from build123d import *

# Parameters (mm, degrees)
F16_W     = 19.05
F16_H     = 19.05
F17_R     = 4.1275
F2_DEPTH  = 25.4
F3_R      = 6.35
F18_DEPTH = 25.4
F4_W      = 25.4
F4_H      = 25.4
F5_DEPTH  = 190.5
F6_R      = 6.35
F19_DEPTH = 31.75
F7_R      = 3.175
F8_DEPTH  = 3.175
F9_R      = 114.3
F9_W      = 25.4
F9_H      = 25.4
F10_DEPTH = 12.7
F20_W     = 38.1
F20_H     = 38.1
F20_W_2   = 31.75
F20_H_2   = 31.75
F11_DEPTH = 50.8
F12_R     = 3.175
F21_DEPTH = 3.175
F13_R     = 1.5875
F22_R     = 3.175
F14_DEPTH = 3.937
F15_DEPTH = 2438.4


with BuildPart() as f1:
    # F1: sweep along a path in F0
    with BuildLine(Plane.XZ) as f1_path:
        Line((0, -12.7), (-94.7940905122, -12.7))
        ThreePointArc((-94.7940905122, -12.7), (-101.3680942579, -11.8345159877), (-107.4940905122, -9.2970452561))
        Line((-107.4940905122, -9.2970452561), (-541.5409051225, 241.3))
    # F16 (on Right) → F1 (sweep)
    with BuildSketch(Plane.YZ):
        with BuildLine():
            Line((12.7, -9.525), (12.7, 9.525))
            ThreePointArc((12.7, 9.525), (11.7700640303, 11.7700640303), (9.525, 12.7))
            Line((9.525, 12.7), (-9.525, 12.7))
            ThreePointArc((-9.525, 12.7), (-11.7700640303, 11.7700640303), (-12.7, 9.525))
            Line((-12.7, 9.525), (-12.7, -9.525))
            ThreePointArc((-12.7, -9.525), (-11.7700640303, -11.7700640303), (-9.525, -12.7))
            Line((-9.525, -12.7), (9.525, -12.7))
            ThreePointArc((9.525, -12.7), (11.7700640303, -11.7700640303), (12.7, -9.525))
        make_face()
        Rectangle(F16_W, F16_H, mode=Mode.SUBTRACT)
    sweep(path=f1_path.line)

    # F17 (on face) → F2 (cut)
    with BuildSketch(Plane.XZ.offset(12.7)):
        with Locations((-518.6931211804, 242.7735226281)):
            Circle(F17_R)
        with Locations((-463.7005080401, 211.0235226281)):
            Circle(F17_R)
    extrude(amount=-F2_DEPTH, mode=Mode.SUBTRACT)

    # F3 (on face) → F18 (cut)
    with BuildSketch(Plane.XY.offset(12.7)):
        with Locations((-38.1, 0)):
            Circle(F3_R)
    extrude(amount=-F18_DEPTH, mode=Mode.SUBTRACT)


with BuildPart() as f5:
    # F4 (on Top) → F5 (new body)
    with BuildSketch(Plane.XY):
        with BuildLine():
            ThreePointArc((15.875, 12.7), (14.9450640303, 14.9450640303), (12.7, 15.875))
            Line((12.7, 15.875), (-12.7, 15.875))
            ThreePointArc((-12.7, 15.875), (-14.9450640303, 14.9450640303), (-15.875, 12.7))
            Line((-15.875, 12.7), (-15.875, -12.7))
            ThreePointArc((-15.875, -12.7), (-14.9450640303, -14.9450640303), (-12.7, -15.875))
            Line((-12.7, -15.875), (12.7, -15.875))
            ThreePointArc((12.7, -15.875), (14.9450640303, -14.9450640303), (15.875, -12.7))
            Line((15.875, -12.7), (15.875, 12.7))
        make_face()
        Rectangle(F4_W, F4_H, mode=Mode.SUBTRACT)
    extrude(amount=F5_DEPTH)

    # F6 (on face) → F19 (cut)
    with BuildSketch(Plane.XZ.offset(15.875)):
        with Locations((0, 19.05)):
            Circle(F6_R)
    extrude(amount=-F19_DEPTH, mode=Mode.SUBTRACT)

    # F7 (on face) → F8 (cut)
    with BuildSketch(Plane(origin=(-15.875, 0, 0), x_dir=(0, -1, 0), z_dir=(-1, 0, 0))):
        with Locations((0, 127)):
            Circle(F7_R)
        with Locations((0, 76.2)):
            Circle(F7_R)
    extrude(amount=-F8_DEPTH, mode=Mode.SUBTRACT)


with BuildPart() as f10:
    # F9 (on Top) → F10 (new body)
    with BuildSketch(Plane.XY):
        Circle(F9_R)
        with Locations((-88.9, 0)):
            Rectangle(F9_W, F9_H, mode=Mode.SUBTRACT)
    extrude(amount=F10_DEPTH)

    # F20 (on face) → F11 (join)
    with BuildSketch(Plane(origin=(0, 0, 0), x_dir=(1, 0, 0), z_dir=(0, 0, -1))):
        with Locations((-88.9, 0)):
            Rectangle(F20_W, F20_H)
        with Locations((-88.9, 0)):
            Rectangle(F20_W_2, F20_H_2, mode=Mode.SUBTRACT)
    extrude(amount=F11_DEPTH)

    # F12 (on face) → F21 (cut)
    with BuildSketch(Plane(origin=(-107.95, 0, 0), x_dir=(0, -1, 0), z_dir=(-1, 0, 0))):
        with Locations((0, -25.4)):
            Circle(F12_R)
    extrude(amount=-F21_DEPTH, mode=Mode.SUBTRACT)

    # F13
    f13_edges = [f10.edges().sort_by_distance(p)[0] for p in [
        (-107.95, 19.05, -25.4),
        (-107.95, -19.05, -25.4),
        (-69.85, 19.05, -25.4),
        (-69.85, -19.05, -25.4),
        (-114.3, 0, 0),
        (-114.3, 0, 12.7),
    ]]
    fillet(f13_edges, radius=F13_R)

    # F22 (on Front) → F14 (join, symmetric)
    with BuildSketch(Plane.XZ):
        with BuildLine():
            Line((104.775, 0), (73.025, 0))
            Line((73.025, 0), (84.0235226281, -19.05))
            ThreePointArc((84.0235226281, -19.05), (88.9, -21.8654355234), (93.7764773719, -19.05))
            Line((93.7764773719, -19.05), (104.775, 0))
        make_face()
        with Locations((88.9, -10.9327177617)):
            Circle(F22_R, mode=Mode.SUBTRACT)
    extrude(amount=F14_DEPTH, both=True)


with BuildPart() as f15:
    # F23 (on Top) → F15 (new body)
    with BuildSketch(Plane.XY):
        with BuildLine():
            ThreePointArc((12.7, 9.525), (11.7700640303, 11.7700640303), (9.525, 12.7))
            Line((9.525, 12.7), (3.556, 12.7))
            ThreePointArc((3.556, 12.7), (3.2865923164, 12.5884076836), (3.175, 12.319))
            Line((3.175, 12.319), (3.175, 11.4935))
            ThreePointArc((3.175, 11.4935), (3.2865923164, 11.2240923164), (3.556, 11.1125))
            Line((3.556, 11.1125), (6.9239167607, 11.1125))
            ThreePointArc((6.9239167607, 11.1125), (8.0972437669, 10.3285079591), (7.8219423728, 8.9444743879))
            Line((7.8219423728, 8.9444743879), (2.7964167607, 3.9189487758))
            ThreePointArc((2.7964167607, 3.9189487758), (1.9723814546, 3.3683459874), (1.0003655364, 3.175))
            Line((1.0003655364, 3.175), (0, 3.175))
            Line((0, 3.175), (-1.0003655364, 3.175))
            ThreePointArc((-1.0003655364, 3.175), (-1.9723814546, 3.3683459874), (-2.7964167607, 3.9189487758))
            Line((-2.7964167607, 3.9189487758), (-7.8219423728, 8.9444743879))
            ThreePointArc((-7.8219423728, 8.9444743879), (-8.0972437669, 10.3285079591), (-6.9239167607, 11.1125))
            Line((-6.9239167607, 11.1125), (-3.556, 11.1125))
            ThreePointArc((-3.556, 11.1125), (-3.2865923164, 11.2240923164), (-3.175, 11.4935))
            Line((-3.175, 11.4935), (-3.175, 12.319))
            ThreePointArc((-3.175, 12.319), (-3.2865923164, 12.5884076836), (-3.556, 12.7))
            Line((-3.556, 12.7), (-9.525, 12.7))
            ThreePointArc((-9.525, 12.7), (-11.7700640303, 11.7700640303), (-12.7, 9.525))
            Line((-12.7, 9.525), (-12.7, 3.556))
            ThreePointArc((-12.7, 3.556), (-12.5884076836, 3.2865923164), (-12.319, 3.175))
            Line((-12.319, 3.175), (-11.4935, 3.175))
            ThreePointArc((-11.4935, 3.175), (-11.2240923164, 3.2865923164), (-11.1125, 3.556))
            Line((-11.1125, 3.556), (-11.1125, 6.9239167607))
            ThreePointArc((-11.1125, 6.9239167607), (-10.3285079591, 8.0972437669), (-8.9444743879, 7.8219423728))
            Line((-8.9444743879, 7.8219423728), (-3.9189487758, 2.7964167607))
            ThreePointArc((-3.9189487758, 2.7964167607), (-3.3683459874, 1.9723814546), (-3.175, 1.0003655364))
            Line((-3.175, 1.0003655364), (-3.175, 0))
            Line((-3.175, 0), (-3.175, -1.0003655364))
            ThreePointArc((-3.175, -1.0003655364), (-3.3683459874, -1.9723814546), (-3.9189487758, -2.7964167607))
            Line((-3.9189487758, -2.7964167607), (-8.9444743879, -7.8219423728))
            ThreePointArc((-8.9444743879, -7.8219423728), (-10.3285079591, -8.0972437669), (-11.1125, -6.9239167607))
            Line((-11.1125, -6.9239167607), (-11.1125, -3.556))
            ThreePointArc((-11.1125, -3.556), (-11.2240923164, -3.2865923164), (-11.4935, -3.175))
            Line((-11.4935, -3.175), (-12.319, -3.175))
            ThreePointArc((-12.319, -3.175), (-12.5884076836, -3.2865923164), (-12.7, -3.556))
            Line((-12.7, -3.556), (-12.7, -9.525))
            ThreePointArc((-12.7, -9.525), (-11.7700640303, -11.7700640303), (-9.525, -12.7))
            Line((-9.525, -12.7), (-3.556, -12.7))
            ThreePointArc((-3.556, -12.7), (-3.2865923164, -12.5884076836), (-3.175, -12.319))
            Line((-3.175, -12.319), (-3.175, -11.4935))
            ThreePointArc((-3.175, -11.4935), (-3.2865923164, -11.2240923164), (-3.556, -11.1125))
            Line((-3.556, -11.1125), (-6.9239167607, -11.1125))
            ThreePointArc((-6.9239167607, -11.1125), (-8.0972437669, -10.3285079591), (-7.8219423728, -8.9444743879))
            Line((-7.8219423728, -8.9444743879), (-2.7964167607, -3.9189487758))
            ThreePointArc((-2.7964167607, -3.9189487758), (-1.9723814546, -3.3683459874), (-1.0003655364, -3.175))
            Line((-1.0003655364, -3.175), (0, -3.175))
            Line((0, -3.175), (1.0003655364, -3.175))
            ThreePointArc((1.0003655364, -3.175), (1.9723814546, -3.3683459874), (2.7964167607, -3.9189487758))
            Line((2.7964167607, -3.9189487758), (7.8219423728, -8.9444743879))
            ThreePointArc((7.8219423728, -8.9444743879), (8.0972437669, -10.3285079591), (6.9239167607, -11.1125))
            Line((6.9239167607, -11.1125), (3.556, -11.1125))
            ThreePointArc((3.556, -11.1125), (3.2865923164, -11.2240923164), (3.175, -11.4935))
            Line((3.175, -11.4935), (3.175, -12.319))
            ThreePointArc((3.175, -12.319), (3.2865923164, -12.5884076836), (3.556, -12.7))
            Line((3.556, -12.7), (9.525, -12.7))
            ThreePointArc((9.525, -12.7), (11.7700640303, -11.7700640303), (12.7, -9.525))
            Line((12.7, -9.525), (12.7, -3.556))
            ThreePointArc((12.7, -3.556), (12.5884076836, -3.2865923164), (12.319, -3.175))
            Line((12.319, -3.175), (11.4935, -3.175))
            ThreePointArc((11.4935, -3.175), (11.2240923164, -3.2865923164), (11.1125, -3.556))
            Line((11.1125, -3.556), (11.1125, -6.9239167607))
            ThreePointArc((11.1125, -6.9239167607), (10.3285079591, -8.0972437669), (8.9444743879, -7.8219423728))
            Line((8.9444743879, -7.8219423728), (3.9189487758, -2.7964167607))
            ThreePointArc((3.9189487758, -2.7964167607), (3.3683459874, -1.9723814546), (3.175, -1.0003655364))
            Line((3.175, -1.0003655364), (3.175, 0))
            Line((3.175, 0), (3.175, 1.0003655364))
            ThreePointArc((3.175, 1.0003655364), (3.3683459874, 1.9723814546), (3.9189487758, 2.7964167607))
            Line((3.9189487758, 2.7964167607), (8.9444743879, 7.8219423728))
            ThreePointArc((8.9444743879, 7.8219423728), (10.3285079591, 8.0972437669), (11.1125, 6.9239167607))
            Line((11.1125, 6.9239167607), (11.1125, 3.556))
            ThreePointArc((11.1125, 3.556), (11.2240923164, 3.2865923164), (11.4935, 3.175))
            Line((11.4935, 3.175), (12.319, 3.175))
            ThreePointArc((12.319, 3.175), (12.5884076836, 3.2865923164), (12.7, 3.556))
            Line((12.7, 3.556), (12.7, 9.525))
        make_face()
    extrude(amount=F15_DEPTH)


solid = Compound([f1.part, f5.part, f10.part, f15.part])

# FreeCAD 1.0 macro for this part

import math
import FreeCAD as App
import Part
import Sketcher

V = App.Vector
Q = App.Units.Quantity


def edges_at(feature, points):
    """Names of the edges that pass closest to the given points."""
    edges = feature.Shape.Edges
    near = lambda p: min(range(len(edges)), key=lambda i: edges[i].distToShape(Part.Vertex(*p))[0])
    return sorted({f"Edge{near(p) + 1}" for p in points})


def add_polygon(sketch, points):
    """Adds a closed chain of lines whose ends are joined by coincident constraints."""
    first, n = sketch.GeometryCount, len(points)
    for a, b in zip(points, points[1:] + points[:1]):
        sketch.addGeometry(Part.LineSegment(App.Vector(*a, 0), App.Vector(*b, 0)), False)
    for i in range(n):
        sketch.addConstraint(Sketcher.Constraint("Coincident", first + i, 2, first + (i + 1) % n, 1))

doc = App.newDocument("Part")
body = doc.addObject("PartDesign::Body", "Body")

# Sketch on YZ plane
sketch1 = doc.addObject("Sketcher::SketchObject", "Sketch")
body.addObject(sketch1)
sketch1.AttachmentSupport = (doc.YZ_Plane, [""])
sketch1.MapMode = "FlatFace"
sketch1.addGeometry(Part.LineSegment(V(12.7, -9.525, 0), V(12.7, 9.525, 0)), False)  # 0
sketch1.addGeometry(Part.ArcOfCircle(Part.Circle(V(9.525, 9.525, 0), V(0, 0, 1), 3.175), math.radians(0), math.radians(90)), False)  # 1
sketch1.addGeometry(Part.LineSegment(V(9.525, 12.7, 0), V(-9.525, 12.7, 0)), False)  # 2
sketch1.addGeometry(Part.ArcOfCircle(Part.Circle(V(-9.525, 9.525, 0), V(0, 0, 1), 3.175), math.radians(90), math.radians(180)), False)  # 3
sketch1.addGeometry(Part.LineSegment(V(-12.7, 9.525, 0), V(-12.7, -9.525, 0)), False)  # 4
sketch1.addGeometry(Part.ArcOfCircle(Part.Circle(V(-9.525, -9.525, 0), V(0, 0, 1), 3.175), math.radians(180), math.radians(270)), False)  # 5
sketch1.addGeometry(Part.LineSegment(V(-9.525, -12.7, 0), V(9.525, -12.7, 0)), False)  # 6
sketch1.addGeometry(Part.ArcOfCircle(Part.Circle(V(9.525, -9.525, 0), V(0, 0, 1), 3.175), math.radians(-90), math.radians(0)), False)  # 7
add_polygon(sketch1, [(9.525, -9.525), (-9.525, -9.525), (-9.525, 9.525), (9.525, 9.525)])  # lines 8-11
sketch1.addConstraint([
    Sketcher.Constraint("Tangent", 0, 2, 1, 1),
    Sketcher.Constraint("Tangent", 1, 2, 2, 1),
    Sketcher.Constraint("Tangent", 2, 2, 3, 1),
    Sketcher.Constraint("Tangent", 3, 2, 4, 1),
    Sketcher.Constraint("Tangent", 4, 2, 5, 1),
    Sketcher.Constraint("Tangent", 5, 2, 6, 1),
    Sketcher.Constraint("Tangent", 6, 2, 7, 1),
    Sketcher.Constraint("Tangent", 7, 2, 0, 1),
    Sketcher.Constraint("Vertical", 0),
    Sketcher.Constraint("Horizontal", 2),
    Sketcher.Constraint("Vertical", 4),
    Sketcher.Constraint("Horizontal", 6),
    Sketcher.Constraint("Horizontal", 8),
    Sketcher.Constraint("Vertical", 9),
    Sketcher.Constraint("Horizontal", 10),
    Sketcher.Constraint("Vertical", 11),
    Sketcher.Constraint("Coincident", 8, 2, 5, 3),
    Sketcher.Constraint("Coincident", 9, 2, 3, 3),
    Sketcher.Constraint("Coincident", 10, 2, 1, 3),
    Sketcher.Constraint("Equal", 5, 7),
    Sketcher.Constraint("Symmetric", 1, 3, 5, 3, -1, 1),
    Sketcher.Constraint("Equal", 10, 0),
    Sketcher.Constraint("Radius", 1, Q("0.125 in")),
    Sketcher.Constraint("DistanceX", 2, 2, 2, 1, Q("0.75 in")),
])

# Sketch on XZ plane
sketch2 = doc.addObject("Sketcher::SketchObject", "Sketch001")
body.addObject(sketch2)
sketch2.AttachmentSupport = (doc.XZ_Plane, [""])
sketch2.MapMode = "FlatFace"
sketch2.addGeometry([
    Part.LineSegment(V(0, -12.7, 0), V(-94.794091, -12.7, 0)),
    Part.ArcOfCircle(Part.Circle(V(-94.794091, 12.7, 0), V(0, 0, 1), 25.4), math.radians(-120), math.radians(-90)),
    Part.LineSegment(V(-107.494091, -9.297045, 0), V(-541.540905, 241.3, 0)),
], False)
sketch2.addConstraint([
    Sketcher.Constraint("Tangent", 0, 2, 1, 2),
    Sketcher.Constraint("Tangent", 1, 1, 2, 1),
    Sketcher.Constraint("Horizontal", 0),
    Sketcher.Constraint("PointOnObject", 0, 1, -2),
    Sketcher.Constraint("Radius", 1, Q("1 in")),
    Sketcher.Constraint("Angle", 2, Q("150 deg")),
    Sketcher.Constraint("DistanceY", 1, 3, 2, 2, Q("9 in")),
    Sketcher.Constraint("DistanceY", -1, 1, 1, 3, Q("0.5 in")),
    Sketcher.Constraint("DistanceX", 0, 2, 0, 1, 94.794091),
])
doc.recompute()

additivepipe = doc.addObject("PartDesign::AdditivePipe", "AdditivePipe")
body.addObject(additivepipe)
additivepipe.Profile = sketch1
additivepipe.Spine = (sketch2, ["Edge1", "Edge2", "Edge3"])

# Sketch on XZ plane
sketch3 = doc.addObject("Sketcher::SketchObject", "Sketch002")
body.addObject(sketch3)
sketch3.AttachmentSupport = (doc.XZ_Plane, [""])
sketch3.MapMode = "FlatFace"
sketch3.AttachmentOffset = App.Placement(V(0, 0, 0.5 * 25.4), App.Rotation())
sketch3.addGeometry([
    Part.Circle(V(-518.693121, 242.773523, 0), V(0, 0, 1), 4.1275),
    Part.Circle(V(-463.700508, 211.023523, 0), V(0, 0, 1), 4.1275),
], False)
sketch3.addConstraint([
    Sketcher.Constraint("Equal", 0, 1),
    Sketcher.Constraint("Diameter", 0, Q("0.325 in")),
    Sketcher.Constraint("DistanceY", 1, 3, 0, 3, Q("1.25 in")),
    Sketcher.Constraint("DistanceX", 0, 3, -1, 1, 518.693121),
    Sketcher.Constraint("DistanceX", 1, 3, -1, 1, 463.700508),
    Sketcher.Constraint("DistanceY", -1, 1, 0, 3, 242.773523),
])
pocket1 = doc.addObject("PartDesign::Pocket", "Pocket")
body.addObject(pocket1)
pocket1.Profile = sketch3
pocket1.Length = Q("1 in")

# Sketch on XY plane
sketch4 = doc.addObject("Sketcher::SketchObject", "Sketch003")
body.addObject(sketch4)
sketch4.AttachmentSupport = (doc.XY_Plane, [""])
sketch4.MapMode = "FlatFace"
sketch4.AttachmentOffset = App.Placement(V(0, 0, 0.5 * 25.4), App.Rotation())
sketch4.addGeometry(Part.Circle(V(-38.1, 0, 0), V(0, 0, 1), 6.35), False)
sketch4.addConstraint([
    Sketcher.Constraint("PointOnObject", 0, 3, -1),
    Sketcher.Constraint("Diameter", 0, Q("0.5 in")),
    Sketcher.Constraint("DistanceX", 0, 3, -1, 1, Q("1.5 in")),
])
pocket2 = doc.addObject("PartDesign::Pocket", "Pocket001")
body.addObject(pocket2)
pocket2.Profile = sketch4
pocket2.Length = Q("1 in")
body2 = doc.addObject("PartDesign::Body", "Body001")

# Sketch on XY plane
sketch5 = doc.addObject("Sketcher::SketchObject", "Sketch004")
body2.addObject(sketch5)
sketch5.AttachmentSupport = (doc.getObject("XY_Plane001"), [""])
sketch5.MapMode = "FlatFace"
sketch5.addGeometry(Part.ArcOfCircle(Part.Circle(V(12.7, 12.7, 0), V(0, 0, 1), 3.175), math.radians(0), math.radians(90)), False)  # 0
sketch5.addGeometry(Part.LineSegment(V(12.7, 15.875, 0), V(-12.7, 15.875, 0)), False)  # 1
sketch5.addGeometry(Part.ArcOfCircle(Part.Circle(V(-12.7, 12.7, 0), V(0, 0, 1), 3.175), math.radians(90), math.radians(180)), False)  # 2
sketch5.addGeometry(Part.LineSegment(V(-15.875, 12.7, 0), V(-15.875, -12.7, 0)), False)  # 3
sketch5.addGeometry(Part.ArcOfCircle(Part.Circle(V(-12.7, -12.7, 0), V(0, 0, 1), 3.175), math.radians(180), math.radians(270)), False)  # 4
sketch5.addGeometry(Part.LineSegment(V(-12.7, -15.875, 0), V(12.7, -15.875, 0)), False)  # 5
sketch5.addGeometry(Part.ArcOfCircle(Part.Circle(V(12.7, -12.7, 0), V(0, 0, 1), 3.175), math.radians(-90), math.radians(0)), False)  # 6
sketch5.addGeometry(Part.LineSegment(V(15.875, -12.7, 0), V(15.875, 12.7, 0)), False)  # 7
add_polygon(sketch5, [(12.7, -12.7), (-12.7, -12.7), (-12.7, 12.7), (12.7, 12.7)])  # lines 8-11
sketch5.addConstraint([
    Sketcher.Constraint("Tangent", 0, 2, 1, 1),
    Sketcher.Constraint("Tangent", 1, 2, 2, 1),
    Sketcher.Constraint("Tangent", 2, 2, 3, 1),
    Sketcher.Constraint("Tangent", 3, 2, 4, 1),
    Sketcher.Constraint("Tangent", 4, 2, 5, 1),
    Sketcher.Constraint("Tangent", 5, 2, 6, 1),
    Sketcher.Constraint("Tangent", 6, 2, 7, 1),
    Sketcher.Constraint("Tangent", 7, 2, 0, 1),
    Sketcher.Constraint("Horizontal", 1),
    Sketcher.Constraint("Vertical", 3),
    Sketcher.Constraint("Horizontal", 5),
    Sketcher.Constraint("Vertical", 7),
    Sketcher.Constraint("Horizontal", 8),
    Sketcher.Constraint("Vertical", 9),
    Sketcher.Constraint("Horizontal", 10),
    Sketcher.Constraint("Vertical", 11),
    Sketcher.Constraint("Coincident", 8, 2, 4, 3),
    Sketcher.Constraint("Coincident", 9, 2, 2, 3),
    Sketcher.Constraint("Coincident", 10, 2, 0, 3),
    Sketcher.Constraint("Equal", 4, 6),
    Sketcher.Constraint("Symmetric", 0, 3, 4, 3, -1, 1),
    Sketcher.Constraint("Equal", 10, 3),
    Sketcher.Constraint("DistanceX", 1, 2, 1, 1, Q("1 in")),
    Sketcher.Constraint("Radius", 0, Q("0.125 in")),
])
pad1 = doc.addObject("PartDesign::Pad", "Pad")
body2.addObject(pad1)
pad1.Profile = sketch5
pad1.Length = Q("7.5 in")

# Sketch on XZ plane
sketch6 = doc.addObject("Sketcher::SketchObject", "Sketch005")
body2.addObject(sketch6)
sketch6.AttachmentSupport = (doc.getObject("XZ_Plane001"), [""])
sketch6.MapMode = "FlatFace"
sketch6.AttachmentOffset = App.Placement(V(0, 0, 0.625 * 25.4), App.Rotation())
sketch6.addGeometry(Part.Circle(V(0, 19.05, 0), V(0, 0, 1), 6.35), False)
sketch6.addConstraint([
    Sketcher.Constraint("PointOnObject", 0, 3, -2),
    Sketcher.Constraint("Diameter", 0, Q("0.5 in")),
    Sketcher.Constraint("DistanceY", -1, 1, 0, 3, Q("0.75 in")),
])
pocket3 = doc.addObject("PartDesign::Pocket", "Pocket002")
body2.addObject(pocket3)
pocket3.Profile = sketch6
pocket3.Length = Q("1.25 in")

# Sketch on YZ plane
sketch7 = doc.addObject("Sketcher::SketchObject", "Sketch006")
body2.addObject(sketch7)
sketch7.AttachmentSupport = (doc.getObject("YZ_Plane001"), [""])
sketch7.MapMode = "FlatFace"
sketch7.AttachmentOffset = App.Placement(V(0, 0, -0.625 * 25.4), App.Rotation())
sketch7.addGeometry([
    Part.Circle(V(0, 127, 0), V(0, 0, 1), 3.175),
    Part.Circle(V(0, 76.2, 0), V(0, 0, 1), 3.175),
], False)
sketch7.addConstraint([
    Sketcher.Constraint("Equal", 0, 1),
    Sketcher.Constraint("PointOnObject", 0, 3, -2),
    Sketcher.Constraint("PointOnObject", 1, 3, -2),
    Sketcher.Constraint("Diameter", 0, Q("0.25 in")),
    Sketcher.Constraint("DistanceY", -1, 1, 0, 3, Q("5 in")),
    Sketcher.Constraint("DistanceY", -1, 1, 1, 3, Q("3 in")),
])
pocket4 = doc.addObject("PartDesign::Pocket", "Pocket003")
body2.addObject(pocket4)
pocket4.Profile = sketch7
pocket4.Length = Q("0.125 in")
pocket4.Reversed = True
body3 = doc.addObject("PartDesign::Body", "Body002")

# Sketch on XY plane
sketch8 = doc.addObject("Sketcher::SketchObject", "Sketch007")
body3.addObject(sketch8)
sketch8.AttachmentSupport = (doc.getObject("XY_Plane002"), [""])
sketch8.MapMode = "FlatFace"
sketch8.addGeometry(Part.Circle(V(0, 0, 0), V(0, 0, 1), 114.3), False)  # 0
add_polygon(sketch8, [(-76.2, -12.7), (-101.6, -12.7), (-101.6, 12.7), (-76.2, 12.7)])  # lines 1-4
sketch8.addConstraint([
    Sketcher.Constraint("Horizontal", 1),
    Sketcher.Constraint("Vertical", 2),
    Sketcher.Constraint("Horizontal", 3),
    Sketcher.Constraint("Vertical", 4),
    Sketcher.Constraint("Coincident", 0, 3, -1, 1),
    Sketcher.Constraint("Equal", 3, 2),
    Sketcher.Constraint("Diameter", 0, Q("9 in")),
    Sketcher.Constraint("DistanceX", 1, 2, 1, 1, Q("1 in")),
    Sketcher.Constraint("DistanceX", 1, 2, -1, 1, Q("4 in")),
    Sketcher.Constraint("DistanceY", 1, 2, -1, 1, Q("0.5 in")),
])
pad2 = doc.addObject("PartDesign::Pad", "Pad001")
body3.addObject(pad2)
pad2.Profile = sketch8
pad2.Length = Q("0.5 in")

# Sketch on XY plane
sketch9 = doc.addObject("Sketcher::SketchObject", "Sketch008")
body3.addObject(sketch9)
sketch9.AttachmentSupport = (doc.getObject("XY_Plane002"), [""])
sketch9.MapMode = "FlatFace"
add_polygon(sketch9, [(-107.95, -19.05), (-107.95, 19.05), (-69.85, 19.05), (-69.85, -19.05)])  # lines 0-3
add_polygon(sketch9, [(-73.025, 15.875), (-104.775, 15.875), (-104.775, -15.875), (-73.025, -15.875)])  # lines 4-7
sketch9.addConstraint([
    Sketcher.Constraint("Vertical", 0),
    Sketcher.Constraint("Horizontal", 1),
    Sketcher.Constraint("Vertical", 2),
    Sketcher.Constraint("Horizontal", 3),
    Sketcher.Constraint("Horizontal", 4),
    Sketcher.Constraint("Vertical", 5),
    Sketcher.Constraint("Horizontal", 6),
    Sketcher.Constraint("Vertical", 7),
    Sketcher.Constraint("Equal", 3, 0),
    Sketcher.Constraint("Equal", 6, 5),
    Sketcher.Constraint("DistanceX", 1, 1, 1, 2, Q("1.5 in")),
    Sketcher.Constraint("DistanceX", 4, 2, 4, 1, Q("1.25 in")),
    Sketcher.Constraint("DistanceX", 0, 2, -1, 1, Q("4.25 in")),
    Sketcher.Constraint("DistanceY", -1, 1, 0, 2, Q("0.75 in")),
    Sketcher.Constraint("DistanceX", 4, 2, -1, 1, Q("4.125 in")),
    Sketcher.Constraint("DistanceY", -1, 1, 4, 2, Q("0.625 in")),
])
pad3 = doc.addObject("PartDesign::Pad", "Pad002")
body3.addObject(pad3)
pad3.Profile = sketch9
pad3.Length = Q("2 in")
pad3.Reversed = True

# Sketch on YZ plane
sketch10 = doc.addObject("Sketcher::SketchObject", "Sketch009")
body3.addObject(sketch10)
sketch10.AttachmentSupport = (doc.getObject("YZ_Plane002"), [""])
sketch10.MapMode = "FlatFace"
sketch10.AttachmentOffset = App.Placement(V(0, 0, -4.25 * 25.4), App.Rotation())
sketch10.addGeometry(Part.Circle(V(0, -25.4, 0), V(0, 0, 1), 3.175), False)
sketch10.addConstraint([
    Sketcher.Constraint("PointOnObject", 0, 3, -2),
    Sketcher.Constraint("Diameter", 0, Q("0.25 in")),
    Sketcher.Constraint("DistanceY", 0, 3, -1, 1, Q("1 in")),
])
pocket5 = doc.addObject("PartDesign::Pocket", "Pocket004")
body3.addObject(pocket5)
pocket5.Profile = sketch10
pocket5.Length = Q("0.125 in")
pocket5.Reversed = True
doc.recompute()

fillet = doc.addObject("PartDesign::Fillet", "Fillet")
body3.addObject(fillet)
fillet.Base = (pocket5, edges_at(pocket5, [
    (-107.95, 19.05, -25.4),
    (-107.95, -19.05, -25.4),
    (-69.85, 19.05, -25.4),
    (-69.85, -19.05, -25.4),
    (-114.3, 0, 0),
    (-114.3, 0, 12.7),
]))
fillet.Radius = Q("0.0625 in")

# Sketch on XZ plane
sketch11 = doc.addObject("Sketcher::SketchObject", "Sketch010")
body3.addObject(sketch11)
sketch11.AttachmentSupport = (doc.getObject("XZ_Plane002"), [""])
sketch11.MapMode = "FlatFace"
sketch11.addGeometry([
    Part.LineSegment(V(104.775, 0, 0), V(73.025, 0, 0)),  # 0
    Part.LineSegment(V(73.025, 0, 0), V(84.023523, -19.05, 0)),  # 1
    Part.ArcOfCircle(Part.Circle(V(88.9, -16.234564, 0), V(0, 0, 1), 5.630871), math.radians(-150), math.radians(-30)),  # 2
    Part.LineSegment(V(93.776477, -19.05, 0), V(104.775, 0, 0)),  # 3
    Part.Circle(V(88.9, -10.932718, 0), V(0, 0, 1), 3.175),  # 4
], False)
sketch11.addConstraint([
    Sketcher.Constraint("Coincident", 0, 2, 1, 1),
    Sketcher.Constraint("Tangent", 1, 2, 2, 1),
    Sketcher.Constraint("Tangent", 2, 2, 3, 1),
    Sketcher.Constraint("Coincident", 3, 2, 0, 1),
    Sketcher.Constraint("Horizontal", 0),
    Sketcher.Constraint("PointOnObject", 0, 2, -1),
    Sketcher.Constraint("Horizontal", 1, 2, 2, 2),
    Sketcher.Constraint("Vertical", 2, 3, 4, 3),
    Sketcher.Constraint("Diameter", 4, Q("0.25 in")),
    Sketcher.Constraint("Angle", 1, Q("-60 deg")),
    Sketcher.Constraint("DistanceX", 0, 2, 0, 1, Q("1.25 in")),
    Sketcher.Constraint("DistanceX", -1, 1, 2, 3, Q("3.5 in")),
    Sketcher.Constraint("DistanceY", 1, 2, -1, 1, Q("0.75 in")),
    Sketcher.Constraint("DistanceY", 4, 3, -1, 1, 10.932718),
])
pad4 = doc.addObject("PartDesign::Pad", "Pad003")
body3.addObject(pad4)
pad4.Profile = sketch11
pad4.Length = Q("0.31 in")
pad4.Midplane = True
body4 = doc.addObject("PartDesign::Body", "Body003")

# Sketch on XY plane
sketch12 = doc.addObject("Sketcher::SketchObject", "Sketch011")
body4.addObject(sketch12)
sketch12.AttachmentSupport = (doc.getObject("XY_Plane003"), [""])
sketch12.MapMode = "FlatFace"
sketch12.addGeometry([
    Part.ArcOfCircle(Part.Circle(V(9.525, 9.525, 0), V(0, 0, 1), 3.175), math.radians(0), math.radians(90)),  # 0
    Part.LineSegment(V(9.525, 12.7, 0), V(3.556, 12.7, 0)),  # 1
    Part.ArcOfCircle(Part.Circle(V(3.556, 12.319, 0), V(0, 0, 1), 0.381), math.radians(90), math.radians(180)),  # 2
    Part.LineSegment(V(3.175, 12.319, 0), V(3.175, 11.4935, 0)),  # 3
    Part.ArcOfCircle(Part.Circle(V(3.556, 11.4935, 0), V(0, 0, 1), 0.381), math.radians(180), math.radians(270)),  # 4
    Part.LineSegment(V(3.556, 11.1125, 0), V(6.923917, 11.1125, 0)),  # 5
    Part.ArcOfCircle(Part.Circle(V(6.923917, 9.8425, 0), V(0, 0, 1), 1.27), math.radians(-45), math.radians(90)),  # 6
    Part.LineSegment(V(7.821942, 8.944474, 0), V(2.796417, 3.918949, 0)),  # 7
    Part.ArcOfCircle(Part.Circle(V(1.000366, 5.715, 0), V(0, 0, 1), 2.54), math.radians(-90), math.radians(-45)),  # 8
    Part.LineSegment(V(1.000366, 3.175, 0), V(-1.000366, 3.175, 0)),  # 9
    Part.ArcOfCircle(Part.Circle(V(-1.000366, 5.715, 0), V(0, 0, 1), 2.54), math.radians(-135), math.radians(-90)),  # 10
    Part.LineSegment(V(-2.796417, 3.918949, 0), V(-7.821942, 8.944474, 0)),  # 11
    Part.ArcOfCircle(Part.Circle(V(-6.923917, 9.8425, 0), V(0, 0, 1), 1.27), math.radians(90), math.radians(225)),  # 12
    Part.LineSegment(V(-6.923917, 11.1125, 0), V(-3.556, 11.1125, 0)),  # 13
    Part.ArcOfCircle(Part.Circle(V(-3.556, 11.4935, 0), V(0, 0, 1), 0.381), math.radians(-90), math.radians(0)),  # 14
    Part.LineSegment(V(-3.175, 11.4935, 0), V(-3.175, 12.319, 0)),  # 15
    Part.ArcOfCircle(Part.Circle(V(-3.556, 12.319, 0), V(0, 0, 1), 0.381), math.radians(0), math.radians(90)),  # 16
    Part.LineSegment(V(-3.556, 12.7, 0), V(-9.525, 12.7, 0)),  # 17
    Part.ArcOfCircle(Part.Circle(V(-9.525, 9.525, 0), V(0, 0, 1), 3.175), math.radians(90), math.radians(180)),  # 18
    Part.LineSegment(V(-12.7, 9.525, 0), V(-12.7, 3.556, 0)),  # 19
    Part.ArcOfCircle(Part.Circle(V(-12.319, 3.556, 0), V(0, 0, 1), 0.381), math.radians(180), math.radians(270)),  # 20
    Part.LineSegment(V(-12.319, 3.175, 0), V(-11.4935, 3.175, 0)),  # 21
    Part.ArcOfCircle(Part.Circle(V(-11.4935, 3.556, 0), V(0, 0, 1), 0.381), math.radians(-90), math.radians(0)),  # 22
    Part.LineSegment(V(-11.1125, 3.556, 0), V(-11.1125, 6.923917, 0)),  # 23
    Part.ArcOfCircle(Part.Circle(V(-9.8425, 6.923917, 0), V(0, 0, 1), 1.27), math.radians(45), math.radians(180)),  # 24
    Part.LineSegment(V(-8.944474, 7.821942, 0), V(-3.918949, 2.796417, 0)),  # 25
    Part.ArcOfCircle(Part.Circle(V(-5.715, 1.000366, 0), V(0, 0, 1), 2.54), math.radians(0), math.radians(45)),  # 26
    Part.LineSegment(V(-3.175, 1.000366, 0), V(-3.175, -1.000366, 0)),  # 27
    Part.ArcOfCircle(Part.Circle(V(-5.715, -1.000366, 0), V(0, 0, 1), 2.54), math.radians(-45), math.radians(0)),  # 28
    Part.LineSegment(V(-3.918949, -2.796417, 0), V(-8.944474, -7.821942, 0)),  # 29
    Part.ArcOfCircle(Part.Circle(V(-9.8425, -6.923917, 0), V(0, 0, 1), 1.27), math.radians(180), math.radians(315)),  # 30
    Part.LineSegment(V(-11.1125, -6.923917, 0), V(-11.1125, -3.556, 0)),  # 31
    Part.ArcOfCircle(Part.Circle(V(-11.4935, -3.556, 0), V(0, 0, 1), 0.381), math.radians(0), math.radians(90)),  # 32
    Part.LineSegment(V(-11.4935, -3.175, 0), V(-12.319, -3.175, 0)),  # 33
    Part.ArcOfCircle(Part.Circle(V(-12.319, -3.556, 0), V(0, 0, 1), 0.381), math.radians(90), math.radians(180)),  # 34
    Part.LineSegment(V(-12.7, -3.556, 0), V(-12.7, -9.525, 0)),  # 35
    Part.ArcOfCircle(Part.Circle(V(-9.525, -9.525, 0), V(0, 0, 1), 3.175), math.radians(180), math.radians(270)),  # 36
    Part.LineSegment(V(-9.525, -12.7, 0), V(-3.556, -12.7, 0)),  # 37
    Part.ArcOfCircle(Part.Circle(V(-3.556, -12.319, 0), V(0, 0, 1), 0.381), math.radians(-90), math.radians(0)),  # 38
    Part.LineSegment(V(-3.175, -12.319, 0), V(-3.175, -11.4935, 0)),  # 39
    Part.ArcOfCircle(Part.Circle(V(-3.556, -11.4935, 0), V(0, 0, 1), 0.381), math.radians(0), math.radians(90)),  # 40
    Part.LineSegment(V(-3.556, -11.1125, 0), V(-6.923917, -11.1125, 0)),  # 41
    Part.ArcOfCircle(Part.Circle(V(-6.923917, -9.8425, 0), V(0, 0, 1), 1.27), math.radians(135), math.radians(270)),  # 42
    Part.LineSegment(V(-7.821942, -8.944474, 0), V(-2.796417, -3.918949, 0)),  # 43
    Part.ArcOfCircle(Part.Circle(V(-1.000366, -5.715, 0), V(0, 0, 1), 2.54), math.radians(90), math.radians(135)),  # 44
    Part.LineSegment(V(-1.000366, -3.175, 0), V(1.000366, -3.175, 0)),  # 45
    Part.ArcOfCircle(Part.Circle(V(1.000366, -5.715, 0), V(0, 0, 1), 2.54), math.radians(45), math.radians(90)),  # 46
    Part.LineSegment(V(2.796417, -3.918949, 0), V(7.821942, -8.944474, 0)),  # 47
    Part.ArcOfCircle(Part.Circle(V(6.923917, -9.8425, 0), V(0, 0, 1), 1.27), math.radians(-90), math.radians(45)),  # 48
    Part.LineSegment(V(6.923917, -11.1125, 0), V(3.556, -11.1125, 0)),  # 49
    Part.ArcOfCircle(Part.Circle(V(3.556, -11.4935, 0), V(0, 0, 1), 0.381), math.radians(90), math.radians(180)),  # 50
    Part.LineSegment(V(3.175, -11.4935, 0), V(3.175, -12.319, 0)),  # 51
    Part.ArcOfCircle(Part.Circle(V(3.556, -12.319, 0), V(0, 0, 1), 0.381), math.radians(180), math.radians(270)),  # 52
    Part.LineSegment(V(3.556, -12.7, 0), V(9.525, -12.7, 0)),  # 53
    Part.ArcOfCircle(Part.Circle(V(9.525, -9.525, 0), V(0, 0, 1), 3.175), math.radians(-90), math.radians(0)),  # 54
    Part.LineSegment(V(12.7, -9.525, 0), V(12.7, -3.556, 0)),  # 55
    Part.ArcOfCircle(Part.Circle(V(12.319, -3.556, 0), V(0, 0, 1), 0.381), math.radians(0), math.radians(90)),  # 56
    Part.LineSegment(V(12.319, -3.175, 0), V(11.4935, -3.175, 0)),  # 57
    Part.ArcOfCircle(Part.Circle(V(11.4935, -3.556, 0), V(0, 0, 1), 0.381), math.radians(90), math.radians(180)),  # 58
    Part.LineSegment(V(11.1125, -3.556, 0), V(11.1125, -6.923917, 0)),  # 59
    Part.ArcOfCircle(Part.Circle(V(9.8425, -6.923917, 0), V(0, 0, 1), 1.27), math.radians(-135), math.radians(0)),  # 60
    Part.LineSegment(V(8.944474, -7.821942, 0), V(3.918949, -2.796417, 0)),  # 61
    Part.ArcOfCircle(Part.Circle(V(5.715, -1.000366, 0), V(0, 0, 1), 2.54), math.radians(180), math.radians(225)),  # 62
    Part.LineSegment(V(3.175, -1.000366, 0), V(3.175, 1.000366, 0)),  # 63
    Part.ArcOfCircle(Part.Circle(V(5.715, 1.000366, 0), V(0, 0, 1), 2.54), math.radians(135), math.radians(180)),  # 64
    Part.LineSegment(V(3.918949, 2.796417, 0), V(8.944474, 7.821942, 0)),  # 65
    Part.ArcOfCircle(Part.Circle(V(9.8425, 6.923917, 0), V(0, 0, 1), 1.27), math.radians(0), math.radians(135)),  # 66
    Part.LineSegment(V(11.1125, 6.923917, 0), V(11.1125, 3.556, 0)),  # 67
    Part.ArcOfCircle(Part.Circle(V(11.4935, 3.556, 0), V(0, 0, 1), 0.381), math.radians(180), math.radians(270)),  # 68
    Part.LineSegment(V(11.4935, 3.175, 0), V(12.319, 3.175, 0)),  # 69
    Part.ArcOfCircle(Part.Circle(V(12.319, 3.556, 0), V(0, 0, 1), 0.381), math.radians(-90), math.radians(0)),  # 70
    Part.LineSegment(V(12.7, 3.556, 0), V(12.7, 9.525, 0)),  # 71
], False)
sketch12.addConstraint([
    Sketcher.Constraint("Tangent", 0, 2, 1, 1),
    Sketcher.Constraint("Tangent", 1, 2, 2, 1),
    Sketcher.Constraint("Tangent", 2, 2, 3, 1),
    Sketcher.Constraint("Tangent", 3, 2, 4, 1),
    Sketcher.Constraint("Tangent", 4, 2, 5, 1),
    Sketcher.Constraint("Tangent", 5, 2, 6, 2),
    Sketcher.Constraint("Tangent", 6, 1, 7, 1),
    Sketcher.Constraint("Tangent", 7, 2, 8, 2),
    Sketcher.Constraint("Tangent", 8, 1, 9, 1),
    Sketcher.Constraint("Tangent", 9, 2, 10, 2),
    Sketcher.Constraint("Tangent", 10, 1, 11, 1),
    Sketcher.Constraint("Tangent", 11, 2, 12, 2),
    Sketcher.Constraint("Tangent", 12, 1, 13, 1),
    Sketcher.Constraint("Tangent", 13, 2, 14, 1),
    Sketcher.Constraint("Tangent", 14, 2, 15, 1),
    Sketcher.Constraint("Tangent", 15, 2, 16, 1),
    Sketcher.Constraint("Tangent", 16, 2, 17, 1),
    Sketcher.Constraint("Tangent", 17, 2, 18, 1),
    Sketcher.Constraint("Tangent", 18, 2, 19, 1),
    Sketcher.Constraint("Tangent", 19, 2, 20, 1),
    Sketcher.Constraint("Tangent", 20, 2, 21, 1),
    Sketcher.Constraint("Tangent", 21, 2, 22, 1),
    Sketcher.Constraint("Tangent", 22, 2, 23, 1),
    Sketcher.Constraint("Tangent", 23, 2, 24, 2),
    Sketcher.Constraint("Tangent", 24, 1, 25, 1),
    Sketcher.Constraint("Tangent", 25, 2, 26, 2),
    Sketcher.Constraint("Tangent", 26, 1, 27, 1),
    Sketcher.Constraint("Tangent", 27, 2, 28, 2),
    Sketcher.Constraint("Tangent", 28, 1, 29, 1),
    Sketcher.Constraint("Tangent", 29, 2, 30, 2),
    Sketcher.Constraint("Tangent", 30, 1, 31, 1),
    Sketcher.Constraint("Tangent", 31, 2, 32, 1),
    Sketcher.Constraint("Tangent", 32, 2, 33, 1),
    Sketcher.Constraint("Tangent", 33, 2, 34, 1),
    Sketcher.Constraint("Tangent", 34, 2, 35, 1),
    Sketcher.Constraint("Tangent", 35, 2, 36, 1),
    Sketcher.Constraint("Tangent", 36, 2, 37, 1),
    Sketcher.Constraint("Tangent", 37, 2, 38, 1),
    Sketcher.Constraint("Tangent", 38, 2, 39, 1),
    Sketcher.Constraint("Tangent", 39, 2, 40, 1),
    Sketcher.Constraint("Tangent", 40, 2, 41, 1),
    Sketcher.Constraint("Tangent", 41, 2, 42, 2),
    Sketcher.Constraint("Tangent", 42, 1, 43, 1),
    Sketcher.Constraint("Tangent", 43, 2, 44, 2),
    Sketcher.Constraint("Tangent", 44, 1, 45, 1),
    Sketcher.Constraint("Tangent", 45, 2, 46, 2),
    Sketcher.Constraint("Tangent", 46, 1, 47, 1),
    Sketcher.Constraint("Tangent", 47, 2, 48, 2),
    Sketcher.Constraint("Tangent", 48, 1, 49, 1),
    Sketcher.Constraint("Tangent", 49, 2, 50, 1),
    Sketcher.Constraint("Tangent", 50, 2, 51, 1),
    Sketcher.Constraint("Tangent", 51, 2, 52, 1),
    Sketcher.Constraint("Tangent", 52, 2, 53, 1),
    Sketcher.Constraint("Tangent", 53, 2, 54, 1),
    Sketcher.Constraint("Tangent", 54, 2, 55, 1),
    Sketcher.Constraint("Tangent", 55, 2, 56, 1),
    Sketcher.Constraint("Tangent", 56, 2, 57, 1),
    Sketcher.Constraint("Tangent", 57, 2, 58, 1),
    Sketcher.Constraint("Tangent", 58, 2, 59, 1),
    Sketcher.Constraint("Tangent", 59, 2, 60, 2),
    Sketcher.Constraint("Tangent", 60, 1, 61, 1),
    Sketcher.Constraint("Tangent", 61, 2, 62, 2),
    Sketcher.Constraint("Tangent", 62, 1, 63, 1),
    Sketcher.Constraint("Tangent", 63, 2, 64, 2),
    Sketcher.Constraint("Tangent", 64, 1, 65, 1),
    Sketcher.Constraint("Tangent", 65, 2, 66, 2),
    Sketcher.Constraint("Tangent", 66, 1, 67, 1),
    Sketcher.Constraint("Tangent", 67, 2, 68, 1),
    Sketcher.Constraint("Tangent", 68, 2, 69, 1),
    Sketcher.Constraint("Tangent", 69, 2, 70, 1),
    Sketcher.Constraint("Tangent", 70, 2, 71, 1),
    Sketcher.Constraint("Tangent", 71, 2, 0, 1),
    Sketcher.Constraint("Horizontal", 1),
    Sketcher.Constraint("Vertical", 3),
    Sketcher.Constraint("Horizontal", 5),
    Sketcher.Constraint("Horizontal", 9),
    Sketcher.Constraint("Horizontal", 13),
    Sketcher.Constraint("Vertical", 15),
    Sketcher.Constraint("Horizontal", 17),
    Sketcher.Constraint("Vertical", 19),
    Sketcher.Constraint("Horizontal", 21),
    Sketcher.Constraint("Vertical", 23),
    Sketcher.Constraint("Vertical", 27),
    Sketcher.Constraint("Vertical", 31),
    Sketcher.Constraint("Horizontal", 33),
    Sketcher.Constraint("Vertical", 35),
    Sketcher.Constraint("Horizontal", 37),
    Sketcher.Constraint("Vertical", 39),
    Sketcher.Constraint("Horizontal", 41),
    Sketcher.Constraint("Horizontal", 45),
    Sketcher.Constraint("Horizontal", 49),
    Sketcher.Constraint("Vertical", 51),
    Sketcher.Constraint("Horizontal", 53),
    Sketcher.Constraint("Vertical", 55),
    Sketcher.Constraint("Horizontal", 57),
    Sketcher.Constraint("Vertical", 59),
    Sketcher.Constraint("Vertical", 63),
    Sketcher.Constraint("Vertical", 67),
    Sketcher.Constraint("Horizontal", 69),
    Sketcher.Constraint("Vertical", 71),
    Sketcher.Constraint("Equal", 2, 4),
    Sketcher.Constraint("Equal", 8, 10),
    Sketcher.Constraint("Equal", 6, 12),
    Sketcher.Constraint("Equal", 4, 14),
    Sketcher.Constraint("Equal", 14, 16),
    Sketcher.Constraint("Equal", 0, 18),
    Sketcher.Constraint("Equal", 16, 20),
    Sketcher.Constraint("Equal", 20, 22),
    Sketcher.Constraint("Equal", 12, 24),
    Sketcher.Constraint("Equal", 10, 26),
    Sketcher.Constraint("Equal", 26, 28),
    Sketcher.Constraint("Equal", 24, 30),
    Sketcher.Constraint("Equal", 22, 32),
    Sketcher.Constraint("Equal", 32, 34),
    Sketcher.Constraint("Equal", 18, 36),
    Sketcher.Constraint("Equal", 34, 38),
    Sketcher.Constraint("Equal", 38, 40),
    Sketcher.Constraint("Equal", 30, 42),
    Sketcher.Constraint("Equal", 28, 44),
    Sketcher.Constraint("Equal", 44, 46),
    Sketcher.Constraint("Equal", 42, 48),
    Sketcher.Constraint("Equal", 40, 50),
    Sketcher.Constraint("Equal", 50, 52),
    Sketcher.Constraint("Equal", 36, 54),
    Sketcher.Constraint("Equal", 52, 56),
    Sketcher.Constraint("Equal", 56, 58),
    Sketcher.Constraint("Equal", 48, 60),
    Sketcher.Constraint("Equal", 46, 62),
    Sketcher.Constraint("Equal", 62, 64),
    Sketcher.Constraint("Equal", 60, 66),
    Sketcher.Constraint("Equal", 58, 68),
    Sketcher.Constraint("Equal", 68, 70),
    Sketcher.Constraint("Symmetric", 0, 3, 36, 3, -1, 1),
    Sketcher.Constraint("Symmetric", 4, 3, 40, 3, -1, 1),
    Sketcher.Constraint("Symmetric", 8, 3, 44, 3, -1, 1),
    Sketcher.Constraint("Symmetric", 12, 3, 48, 3, -1, 1),
    Sketcher.Constraint("Symmetric", 16, 3, 52, 3, -1, 1),
    Sketcher.Constraint("Symmetric", 20, 3, 56, 3, -1, 1),
    Sketcher.Constraint("Symmetric", 24, 3, 60, 3, -1, 1),
    Sketcher.Constraint("Symmetric", 26, 3, 62, 3, -1, 1),
    Sketcher.Constraint("Symmetric", 30, 3, 66, 3, -1, 1),
    Sketcher.Constraint("Symmetric", 6, 3, 12, 3, -2),
    Sketcher.Constraint("Symmetric", 2, 3, 16, 3, -2),
    Sketcher.Constraint("Symmetric", 34, 3, 56, 3, -2),
    Sketcher.Constraint("Symmetric", 30, 3, 60, 3, -2),
    Sketcher.Constraint("Symmetric", 43, 2, 46, 1, -2),
    Sketcher.Constraint("Perpendicular", 7, 11),
    Sketcher.Constraint("Parallel", 11, 25),
    Sketcher.Constraint("Perpendicular", 25, 29),
    Sketcher.Constraint("Perpendicular", 43, 47),
    Sketcher.Constraint("Perpendicular", 61, 65),
    Sketcher.Constraint("Horizontal", 22, 3, 68, 3),
    Sketcher.Constraint("Horizontal", 9, 2, 20, 2),
    Sketcher.Constraint("Vertical", 15, 2, 26, 1),
    Sketcher.Constraint("Equal", 69, 3),
    Sketcher.Constraint("Equal", 53, 19),
    Sketcher.Constraint("Equal", 49, 23),
    Sketcher.Constraint("Equal", 45, 27),
    Sketcher.Constraint("Radius", 8, Q("0.1 in")),
    Sketcher.Constraint("Radius", 6, Q("0.05 in")),
    Sketcher.Constraint("Radius", 0, Q("0.125 in")),
    Sketcher.Constraint("Radius", 2, Q("0.015 in")),
    Sketcher.Constraint("DistanceY", -1, 1, 0, 2, Q("0.5 in")),
    Sketcher.Constraint("DistanceX", 1, 2, 1, 1, Q("0.235 in")),
    Sketcher.Constraint("DistanceX", 21, 1, 21, 2, Q("0.0325 in")),
    Sketcher.Constraint("DistanceX", 9, 2, 9, 1, 2.000731),
])
pad5 = doc.addObject("PartDesign::Pad", "Pad004")
body4.addObject(pad5)
pad5.Profile = sketch12
pad5.Length = Q("96 in")

doc.recompute()
